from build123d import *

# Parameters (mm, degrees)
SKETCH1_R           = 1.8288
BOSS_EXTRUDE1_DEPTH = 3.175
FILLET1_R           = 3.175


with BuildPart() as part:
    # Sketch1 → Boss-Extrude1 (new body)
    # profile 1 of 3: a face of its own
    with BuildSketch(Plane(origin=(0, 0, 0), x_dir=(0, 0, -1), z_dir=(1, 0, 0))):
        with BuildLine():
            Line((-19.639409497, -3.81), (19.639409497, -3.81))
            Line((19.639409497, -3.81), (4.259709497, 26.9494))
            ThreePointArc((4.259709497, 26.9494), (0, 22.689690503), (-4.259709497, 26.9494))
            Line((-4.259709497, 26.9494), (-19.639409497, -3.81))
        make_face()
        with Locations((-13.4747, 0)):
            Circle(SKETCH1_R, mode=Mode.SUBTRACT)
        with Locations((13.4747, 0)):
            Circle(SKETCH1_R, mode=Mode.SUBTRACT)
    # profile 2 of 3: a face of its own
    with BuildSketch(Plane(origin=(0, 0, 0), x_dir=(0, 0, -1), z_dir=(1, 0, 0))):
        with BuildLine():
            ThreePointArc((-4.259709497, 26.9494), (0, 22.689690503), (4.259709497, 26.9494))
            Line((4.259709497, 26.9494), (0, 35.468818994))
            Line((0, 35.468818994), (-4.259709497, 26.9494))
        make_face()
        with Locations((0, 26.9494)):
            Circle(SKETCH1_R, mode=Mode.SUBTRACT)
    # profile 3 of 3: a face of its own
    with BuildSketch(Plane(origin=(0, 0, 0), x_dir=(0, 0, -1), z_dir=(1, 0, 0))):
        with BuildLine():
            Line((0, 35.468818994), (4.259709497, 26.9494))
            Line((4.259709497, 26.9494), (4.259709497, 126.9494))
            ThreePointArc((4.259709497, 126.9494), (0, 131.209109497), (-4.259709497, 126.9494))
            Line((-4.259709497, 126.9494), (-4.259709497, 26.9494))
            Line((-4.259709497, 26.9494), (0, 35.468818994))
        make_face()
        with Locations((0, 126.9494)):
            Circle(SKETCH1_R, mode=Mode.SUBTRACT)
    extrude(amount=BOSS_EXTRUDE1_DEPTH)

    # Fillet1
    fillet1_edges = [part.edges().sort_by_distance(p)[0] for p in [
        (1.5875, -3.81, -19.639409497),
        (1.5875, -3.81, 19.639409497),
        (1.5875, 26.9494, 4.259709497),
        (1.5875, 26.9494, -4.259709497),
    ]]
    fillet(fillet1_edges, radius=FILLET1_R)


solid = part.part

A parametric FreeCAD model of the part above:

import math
import FreeCAD as App
import Part
import Sketcher

V = App.Vector
Q = App.Units.Quantity


def edges_at(feature, points):
    """Names of the edges that pass closest to the given points."""
    edges = feature.Shape.Edges
    near = lambda p: min(range(len(edges)), key=lambda i: edges[i].distToShape(Part.Vertex(*p))[0])
    return sorted({f"Edge{near(p) + 1}" for p in points})

doc = App.newDocument("Part")
body = doc.addObject("PartDesign::Body", "Body")

# Sketch on YZ plane
sketch1 = body.newObject("Sketcher::SketchObject", "Sketch")
sketch1.AttachmentSupport = (doc.getObject("YZ_Plane"), [""])
sketch1.MapMode = "FlatFace"
sketch1.addGeometry(Part.LineSegment(V(-3.8, 19.6, 0), V(-3.8, -19.6, 0)), False)
sketch1.addGeometry(Part.LineSegment(V(-3.8, -19.6, 0), V(26.9, -4.3, 0)), False)
sketch1.addGeometry(Part.LineSegment(V(26.9, -4.3, 0), V(126.9, -4.3, 0)), False)
sketch1.addGeometry(Part.ArcOfCircle(Part.Circle(V(126.9, 0, 0), V(0, 0, 1), 4.3), math.radians(-90), math.radians(90)), False)
sketch1.addGeometry(Part.LineSegment(V(126.9, 4.3, 0), V(26.9, 4.3, 0)), False)
sketch1.addGeometry(Part.LineSegment(V(26.9, 4.3, 0), V(-3.8, 19.6, 0)), False)
sketch1.addGeometry(Part.Circle(V(0, 13.5, 0), V(0, 0, 1), 1.8), False)
sketch1.addGeometry(Part.Circle(V(0, -13.5, 0), V(0, 0, 1), 1.8), False)
sketch1.addGeometry(Part.Circle(V(26.9, 0, 0), V(0, 0, 1), 1.8), False)
sketch1.addGeometry(Part.Circle(V(126.9, 0, 0), V(0, 0, 1), 1.8), False)
sketch1.addConstraint(Sketcher.Constraint("Coincident", 0, 2, 1, 1))
sketch1.addConstraint(Sketcher.Constraint("Coincident", 1, 2, 2, 1))
sketch1.addConstraint(Sketcher.Constraint("Tangent", 2, 2, 3, 1))
sketch1.addConstraint(Sketcher.Constraint("Tangent", 3, 2, 4, 1))
sketch1.addConstraint(Sketcher.Constraint("Coincident", 4, 2, 5, 1))
sketch1.addConstraint(Sketcher.Constraint("Coincident", 5, 2, 0, 1))
sketch1.addConstraint(Sketcher.Constraint("Vertical", 0))
sketch1.addConstraint(Sketcher.Constraint("Horizontal", 2))
sketch1.addConstraint(Sketcher.Constraint("Horizontal", 4))
sketch1.addConstraint(Sketcher.Constraint("Coincident", 9, 3, 3, 3))
sketch1.addConstraint(Sketcher.Constraint("Equal", 6, 7))
sketch1.addConstraint(Sketcher.Constraint("Equal", 7, 8))
sketch1.addConstraint(Sketcher.Constraint("Equal", 8, 9))
sketch1.addConstraint(Sketcher.Constraint("Symmetric", 6, 3, 7, 3, -1, 1))
sketch1.addConstraint(Sketcher.Constraint("Symmetric", 1, 2, 4, 2, -1))
sketch1.addConstraint(Sketcher.Constraint("PointOnObject", 6, 3, -2))
sketch1.addConstraint(Sketcher.Constraint("PointOnObject", 8, 3, -1))
sketch1.addConstraint(Sketcher.Constraint("Vertical", 8, 3, 1, 2))
sketch1.addConstraint(Sketcher.Constraint("Equal", 1, 5))
sketch1.addConstraint(Sketcher.Constraint("Diameter", 6, Q("0.144 in")))
sketch1.addConstraint(Sketcher.Constraint("DistanceX", 0, 2, -1, 1, Q("0.15 in")))
sketch1.addConstraint(Sketcher.Constraint("DistanceX", -1, 1, 8, 3, Q("1.061 in")))
sketch1.addConstraint(Sketcher.Constraint("Radius", 3, 4.259709))
sketch1.addConstraint(Sketcher.Constraint("DistanceY", 7, 3, 6, 3, Q("1.061 in")))
sketch1.addConstraint(Sketcher.Constraint("DistanceX", 2, 1, 2, 2, 100.0))
sketch1.addConstraint(Sketcher.Constraint("DistanceY", 0, 2, 1, 2, Q("0.6055 in")))
pad1 = body.newObject("PartDesign::Pad", "Pad")
pad1.Profile = sketch1
pad1.Length = Q("0.125 in")
doc.recompute()

fillet = body.newObject("PartDesign::Fillet", "Fillet")
fillet.Base = (pad1, edges_at(pad1, [
    (1.587, -3.81, -19.639),
    (1.587, -3.81, 19.639),
    (1.587, 26.949, 4.26),
    (1.587, 26.949, -4.26),
]))
fillet.Radius = Q("0.125 in")

doc.recompute()
